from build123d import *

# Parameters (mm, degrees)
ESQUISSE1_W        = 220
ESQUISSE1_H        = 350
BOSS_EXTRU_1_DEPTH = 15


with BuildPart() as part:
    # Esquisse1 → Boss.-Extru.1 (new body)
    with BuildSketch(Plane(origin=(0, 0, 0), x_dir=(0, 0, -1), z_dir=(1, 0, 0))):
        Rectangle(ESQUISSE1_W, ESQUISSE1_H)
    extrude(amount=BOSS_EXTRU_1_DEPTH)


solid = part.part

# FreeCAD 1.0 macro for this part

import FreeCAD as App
import Part
import Sketcher

V = App.Vector

doc = App.newDocument("Part")
body = doc.addObject("PartDesign::Body", "Body")

sketch1 = doc.addObject("Sketcher::SketchObject", "Sketch")
body.addObject(sketch1)
sketch1.AttachmentSupport = (doc.YZ_Plane, [""])
sketch1.MapMode = "FlatFace"
sketch1.addGeometry([
    Part.LineSegment(V(175, 110, 0), V(-175, 110, 0)),
    Part.LineSegment(V(-175, 110, 0), V(-175, -110, 0)),
    Part.LineSegment(V(-175, -110, 0), V(175, -110, 0)),
    Part.LineSegment(V(175, -110, 0), V(175, 110, 0)),
], False)
sketch1.addConstraint([
    Sketcher.Constraint("Coincident", 0, 2, 1, 1),
    Sketcher.Constraint("Coincident", 1, 2, 2, 1),
    Sketcher.Constraint("Coincident", 2, 2, 3, 1),
    Sketcher.Constraint("Coincident", 3, 2, 0, 1),
    Sketcher.Constraint("Horizontal", 0),
    Sketcher.Constraint("Vertical", 1),
    Sketcher.Constraint("Horizontal", 2),
    Sketcher.Constraint("Vertical", 3),
    Sketcher.Constraint("Symmetric", 0, 2, 2, 2, -1, 1),
    Sketcher.Constraint("DistanceX", 0, 2, 0, 1, 350.0),
    Sketcher.Constraint("DistanceY", 1, 2, 1, 1, 220.0),
])
pad1 = doc.addObject("PartDesign::Pad", "Pad")
body.addObject(pad1)
pad1.Profile = sketch1
pad1.Length = 15

doc.recompute()
